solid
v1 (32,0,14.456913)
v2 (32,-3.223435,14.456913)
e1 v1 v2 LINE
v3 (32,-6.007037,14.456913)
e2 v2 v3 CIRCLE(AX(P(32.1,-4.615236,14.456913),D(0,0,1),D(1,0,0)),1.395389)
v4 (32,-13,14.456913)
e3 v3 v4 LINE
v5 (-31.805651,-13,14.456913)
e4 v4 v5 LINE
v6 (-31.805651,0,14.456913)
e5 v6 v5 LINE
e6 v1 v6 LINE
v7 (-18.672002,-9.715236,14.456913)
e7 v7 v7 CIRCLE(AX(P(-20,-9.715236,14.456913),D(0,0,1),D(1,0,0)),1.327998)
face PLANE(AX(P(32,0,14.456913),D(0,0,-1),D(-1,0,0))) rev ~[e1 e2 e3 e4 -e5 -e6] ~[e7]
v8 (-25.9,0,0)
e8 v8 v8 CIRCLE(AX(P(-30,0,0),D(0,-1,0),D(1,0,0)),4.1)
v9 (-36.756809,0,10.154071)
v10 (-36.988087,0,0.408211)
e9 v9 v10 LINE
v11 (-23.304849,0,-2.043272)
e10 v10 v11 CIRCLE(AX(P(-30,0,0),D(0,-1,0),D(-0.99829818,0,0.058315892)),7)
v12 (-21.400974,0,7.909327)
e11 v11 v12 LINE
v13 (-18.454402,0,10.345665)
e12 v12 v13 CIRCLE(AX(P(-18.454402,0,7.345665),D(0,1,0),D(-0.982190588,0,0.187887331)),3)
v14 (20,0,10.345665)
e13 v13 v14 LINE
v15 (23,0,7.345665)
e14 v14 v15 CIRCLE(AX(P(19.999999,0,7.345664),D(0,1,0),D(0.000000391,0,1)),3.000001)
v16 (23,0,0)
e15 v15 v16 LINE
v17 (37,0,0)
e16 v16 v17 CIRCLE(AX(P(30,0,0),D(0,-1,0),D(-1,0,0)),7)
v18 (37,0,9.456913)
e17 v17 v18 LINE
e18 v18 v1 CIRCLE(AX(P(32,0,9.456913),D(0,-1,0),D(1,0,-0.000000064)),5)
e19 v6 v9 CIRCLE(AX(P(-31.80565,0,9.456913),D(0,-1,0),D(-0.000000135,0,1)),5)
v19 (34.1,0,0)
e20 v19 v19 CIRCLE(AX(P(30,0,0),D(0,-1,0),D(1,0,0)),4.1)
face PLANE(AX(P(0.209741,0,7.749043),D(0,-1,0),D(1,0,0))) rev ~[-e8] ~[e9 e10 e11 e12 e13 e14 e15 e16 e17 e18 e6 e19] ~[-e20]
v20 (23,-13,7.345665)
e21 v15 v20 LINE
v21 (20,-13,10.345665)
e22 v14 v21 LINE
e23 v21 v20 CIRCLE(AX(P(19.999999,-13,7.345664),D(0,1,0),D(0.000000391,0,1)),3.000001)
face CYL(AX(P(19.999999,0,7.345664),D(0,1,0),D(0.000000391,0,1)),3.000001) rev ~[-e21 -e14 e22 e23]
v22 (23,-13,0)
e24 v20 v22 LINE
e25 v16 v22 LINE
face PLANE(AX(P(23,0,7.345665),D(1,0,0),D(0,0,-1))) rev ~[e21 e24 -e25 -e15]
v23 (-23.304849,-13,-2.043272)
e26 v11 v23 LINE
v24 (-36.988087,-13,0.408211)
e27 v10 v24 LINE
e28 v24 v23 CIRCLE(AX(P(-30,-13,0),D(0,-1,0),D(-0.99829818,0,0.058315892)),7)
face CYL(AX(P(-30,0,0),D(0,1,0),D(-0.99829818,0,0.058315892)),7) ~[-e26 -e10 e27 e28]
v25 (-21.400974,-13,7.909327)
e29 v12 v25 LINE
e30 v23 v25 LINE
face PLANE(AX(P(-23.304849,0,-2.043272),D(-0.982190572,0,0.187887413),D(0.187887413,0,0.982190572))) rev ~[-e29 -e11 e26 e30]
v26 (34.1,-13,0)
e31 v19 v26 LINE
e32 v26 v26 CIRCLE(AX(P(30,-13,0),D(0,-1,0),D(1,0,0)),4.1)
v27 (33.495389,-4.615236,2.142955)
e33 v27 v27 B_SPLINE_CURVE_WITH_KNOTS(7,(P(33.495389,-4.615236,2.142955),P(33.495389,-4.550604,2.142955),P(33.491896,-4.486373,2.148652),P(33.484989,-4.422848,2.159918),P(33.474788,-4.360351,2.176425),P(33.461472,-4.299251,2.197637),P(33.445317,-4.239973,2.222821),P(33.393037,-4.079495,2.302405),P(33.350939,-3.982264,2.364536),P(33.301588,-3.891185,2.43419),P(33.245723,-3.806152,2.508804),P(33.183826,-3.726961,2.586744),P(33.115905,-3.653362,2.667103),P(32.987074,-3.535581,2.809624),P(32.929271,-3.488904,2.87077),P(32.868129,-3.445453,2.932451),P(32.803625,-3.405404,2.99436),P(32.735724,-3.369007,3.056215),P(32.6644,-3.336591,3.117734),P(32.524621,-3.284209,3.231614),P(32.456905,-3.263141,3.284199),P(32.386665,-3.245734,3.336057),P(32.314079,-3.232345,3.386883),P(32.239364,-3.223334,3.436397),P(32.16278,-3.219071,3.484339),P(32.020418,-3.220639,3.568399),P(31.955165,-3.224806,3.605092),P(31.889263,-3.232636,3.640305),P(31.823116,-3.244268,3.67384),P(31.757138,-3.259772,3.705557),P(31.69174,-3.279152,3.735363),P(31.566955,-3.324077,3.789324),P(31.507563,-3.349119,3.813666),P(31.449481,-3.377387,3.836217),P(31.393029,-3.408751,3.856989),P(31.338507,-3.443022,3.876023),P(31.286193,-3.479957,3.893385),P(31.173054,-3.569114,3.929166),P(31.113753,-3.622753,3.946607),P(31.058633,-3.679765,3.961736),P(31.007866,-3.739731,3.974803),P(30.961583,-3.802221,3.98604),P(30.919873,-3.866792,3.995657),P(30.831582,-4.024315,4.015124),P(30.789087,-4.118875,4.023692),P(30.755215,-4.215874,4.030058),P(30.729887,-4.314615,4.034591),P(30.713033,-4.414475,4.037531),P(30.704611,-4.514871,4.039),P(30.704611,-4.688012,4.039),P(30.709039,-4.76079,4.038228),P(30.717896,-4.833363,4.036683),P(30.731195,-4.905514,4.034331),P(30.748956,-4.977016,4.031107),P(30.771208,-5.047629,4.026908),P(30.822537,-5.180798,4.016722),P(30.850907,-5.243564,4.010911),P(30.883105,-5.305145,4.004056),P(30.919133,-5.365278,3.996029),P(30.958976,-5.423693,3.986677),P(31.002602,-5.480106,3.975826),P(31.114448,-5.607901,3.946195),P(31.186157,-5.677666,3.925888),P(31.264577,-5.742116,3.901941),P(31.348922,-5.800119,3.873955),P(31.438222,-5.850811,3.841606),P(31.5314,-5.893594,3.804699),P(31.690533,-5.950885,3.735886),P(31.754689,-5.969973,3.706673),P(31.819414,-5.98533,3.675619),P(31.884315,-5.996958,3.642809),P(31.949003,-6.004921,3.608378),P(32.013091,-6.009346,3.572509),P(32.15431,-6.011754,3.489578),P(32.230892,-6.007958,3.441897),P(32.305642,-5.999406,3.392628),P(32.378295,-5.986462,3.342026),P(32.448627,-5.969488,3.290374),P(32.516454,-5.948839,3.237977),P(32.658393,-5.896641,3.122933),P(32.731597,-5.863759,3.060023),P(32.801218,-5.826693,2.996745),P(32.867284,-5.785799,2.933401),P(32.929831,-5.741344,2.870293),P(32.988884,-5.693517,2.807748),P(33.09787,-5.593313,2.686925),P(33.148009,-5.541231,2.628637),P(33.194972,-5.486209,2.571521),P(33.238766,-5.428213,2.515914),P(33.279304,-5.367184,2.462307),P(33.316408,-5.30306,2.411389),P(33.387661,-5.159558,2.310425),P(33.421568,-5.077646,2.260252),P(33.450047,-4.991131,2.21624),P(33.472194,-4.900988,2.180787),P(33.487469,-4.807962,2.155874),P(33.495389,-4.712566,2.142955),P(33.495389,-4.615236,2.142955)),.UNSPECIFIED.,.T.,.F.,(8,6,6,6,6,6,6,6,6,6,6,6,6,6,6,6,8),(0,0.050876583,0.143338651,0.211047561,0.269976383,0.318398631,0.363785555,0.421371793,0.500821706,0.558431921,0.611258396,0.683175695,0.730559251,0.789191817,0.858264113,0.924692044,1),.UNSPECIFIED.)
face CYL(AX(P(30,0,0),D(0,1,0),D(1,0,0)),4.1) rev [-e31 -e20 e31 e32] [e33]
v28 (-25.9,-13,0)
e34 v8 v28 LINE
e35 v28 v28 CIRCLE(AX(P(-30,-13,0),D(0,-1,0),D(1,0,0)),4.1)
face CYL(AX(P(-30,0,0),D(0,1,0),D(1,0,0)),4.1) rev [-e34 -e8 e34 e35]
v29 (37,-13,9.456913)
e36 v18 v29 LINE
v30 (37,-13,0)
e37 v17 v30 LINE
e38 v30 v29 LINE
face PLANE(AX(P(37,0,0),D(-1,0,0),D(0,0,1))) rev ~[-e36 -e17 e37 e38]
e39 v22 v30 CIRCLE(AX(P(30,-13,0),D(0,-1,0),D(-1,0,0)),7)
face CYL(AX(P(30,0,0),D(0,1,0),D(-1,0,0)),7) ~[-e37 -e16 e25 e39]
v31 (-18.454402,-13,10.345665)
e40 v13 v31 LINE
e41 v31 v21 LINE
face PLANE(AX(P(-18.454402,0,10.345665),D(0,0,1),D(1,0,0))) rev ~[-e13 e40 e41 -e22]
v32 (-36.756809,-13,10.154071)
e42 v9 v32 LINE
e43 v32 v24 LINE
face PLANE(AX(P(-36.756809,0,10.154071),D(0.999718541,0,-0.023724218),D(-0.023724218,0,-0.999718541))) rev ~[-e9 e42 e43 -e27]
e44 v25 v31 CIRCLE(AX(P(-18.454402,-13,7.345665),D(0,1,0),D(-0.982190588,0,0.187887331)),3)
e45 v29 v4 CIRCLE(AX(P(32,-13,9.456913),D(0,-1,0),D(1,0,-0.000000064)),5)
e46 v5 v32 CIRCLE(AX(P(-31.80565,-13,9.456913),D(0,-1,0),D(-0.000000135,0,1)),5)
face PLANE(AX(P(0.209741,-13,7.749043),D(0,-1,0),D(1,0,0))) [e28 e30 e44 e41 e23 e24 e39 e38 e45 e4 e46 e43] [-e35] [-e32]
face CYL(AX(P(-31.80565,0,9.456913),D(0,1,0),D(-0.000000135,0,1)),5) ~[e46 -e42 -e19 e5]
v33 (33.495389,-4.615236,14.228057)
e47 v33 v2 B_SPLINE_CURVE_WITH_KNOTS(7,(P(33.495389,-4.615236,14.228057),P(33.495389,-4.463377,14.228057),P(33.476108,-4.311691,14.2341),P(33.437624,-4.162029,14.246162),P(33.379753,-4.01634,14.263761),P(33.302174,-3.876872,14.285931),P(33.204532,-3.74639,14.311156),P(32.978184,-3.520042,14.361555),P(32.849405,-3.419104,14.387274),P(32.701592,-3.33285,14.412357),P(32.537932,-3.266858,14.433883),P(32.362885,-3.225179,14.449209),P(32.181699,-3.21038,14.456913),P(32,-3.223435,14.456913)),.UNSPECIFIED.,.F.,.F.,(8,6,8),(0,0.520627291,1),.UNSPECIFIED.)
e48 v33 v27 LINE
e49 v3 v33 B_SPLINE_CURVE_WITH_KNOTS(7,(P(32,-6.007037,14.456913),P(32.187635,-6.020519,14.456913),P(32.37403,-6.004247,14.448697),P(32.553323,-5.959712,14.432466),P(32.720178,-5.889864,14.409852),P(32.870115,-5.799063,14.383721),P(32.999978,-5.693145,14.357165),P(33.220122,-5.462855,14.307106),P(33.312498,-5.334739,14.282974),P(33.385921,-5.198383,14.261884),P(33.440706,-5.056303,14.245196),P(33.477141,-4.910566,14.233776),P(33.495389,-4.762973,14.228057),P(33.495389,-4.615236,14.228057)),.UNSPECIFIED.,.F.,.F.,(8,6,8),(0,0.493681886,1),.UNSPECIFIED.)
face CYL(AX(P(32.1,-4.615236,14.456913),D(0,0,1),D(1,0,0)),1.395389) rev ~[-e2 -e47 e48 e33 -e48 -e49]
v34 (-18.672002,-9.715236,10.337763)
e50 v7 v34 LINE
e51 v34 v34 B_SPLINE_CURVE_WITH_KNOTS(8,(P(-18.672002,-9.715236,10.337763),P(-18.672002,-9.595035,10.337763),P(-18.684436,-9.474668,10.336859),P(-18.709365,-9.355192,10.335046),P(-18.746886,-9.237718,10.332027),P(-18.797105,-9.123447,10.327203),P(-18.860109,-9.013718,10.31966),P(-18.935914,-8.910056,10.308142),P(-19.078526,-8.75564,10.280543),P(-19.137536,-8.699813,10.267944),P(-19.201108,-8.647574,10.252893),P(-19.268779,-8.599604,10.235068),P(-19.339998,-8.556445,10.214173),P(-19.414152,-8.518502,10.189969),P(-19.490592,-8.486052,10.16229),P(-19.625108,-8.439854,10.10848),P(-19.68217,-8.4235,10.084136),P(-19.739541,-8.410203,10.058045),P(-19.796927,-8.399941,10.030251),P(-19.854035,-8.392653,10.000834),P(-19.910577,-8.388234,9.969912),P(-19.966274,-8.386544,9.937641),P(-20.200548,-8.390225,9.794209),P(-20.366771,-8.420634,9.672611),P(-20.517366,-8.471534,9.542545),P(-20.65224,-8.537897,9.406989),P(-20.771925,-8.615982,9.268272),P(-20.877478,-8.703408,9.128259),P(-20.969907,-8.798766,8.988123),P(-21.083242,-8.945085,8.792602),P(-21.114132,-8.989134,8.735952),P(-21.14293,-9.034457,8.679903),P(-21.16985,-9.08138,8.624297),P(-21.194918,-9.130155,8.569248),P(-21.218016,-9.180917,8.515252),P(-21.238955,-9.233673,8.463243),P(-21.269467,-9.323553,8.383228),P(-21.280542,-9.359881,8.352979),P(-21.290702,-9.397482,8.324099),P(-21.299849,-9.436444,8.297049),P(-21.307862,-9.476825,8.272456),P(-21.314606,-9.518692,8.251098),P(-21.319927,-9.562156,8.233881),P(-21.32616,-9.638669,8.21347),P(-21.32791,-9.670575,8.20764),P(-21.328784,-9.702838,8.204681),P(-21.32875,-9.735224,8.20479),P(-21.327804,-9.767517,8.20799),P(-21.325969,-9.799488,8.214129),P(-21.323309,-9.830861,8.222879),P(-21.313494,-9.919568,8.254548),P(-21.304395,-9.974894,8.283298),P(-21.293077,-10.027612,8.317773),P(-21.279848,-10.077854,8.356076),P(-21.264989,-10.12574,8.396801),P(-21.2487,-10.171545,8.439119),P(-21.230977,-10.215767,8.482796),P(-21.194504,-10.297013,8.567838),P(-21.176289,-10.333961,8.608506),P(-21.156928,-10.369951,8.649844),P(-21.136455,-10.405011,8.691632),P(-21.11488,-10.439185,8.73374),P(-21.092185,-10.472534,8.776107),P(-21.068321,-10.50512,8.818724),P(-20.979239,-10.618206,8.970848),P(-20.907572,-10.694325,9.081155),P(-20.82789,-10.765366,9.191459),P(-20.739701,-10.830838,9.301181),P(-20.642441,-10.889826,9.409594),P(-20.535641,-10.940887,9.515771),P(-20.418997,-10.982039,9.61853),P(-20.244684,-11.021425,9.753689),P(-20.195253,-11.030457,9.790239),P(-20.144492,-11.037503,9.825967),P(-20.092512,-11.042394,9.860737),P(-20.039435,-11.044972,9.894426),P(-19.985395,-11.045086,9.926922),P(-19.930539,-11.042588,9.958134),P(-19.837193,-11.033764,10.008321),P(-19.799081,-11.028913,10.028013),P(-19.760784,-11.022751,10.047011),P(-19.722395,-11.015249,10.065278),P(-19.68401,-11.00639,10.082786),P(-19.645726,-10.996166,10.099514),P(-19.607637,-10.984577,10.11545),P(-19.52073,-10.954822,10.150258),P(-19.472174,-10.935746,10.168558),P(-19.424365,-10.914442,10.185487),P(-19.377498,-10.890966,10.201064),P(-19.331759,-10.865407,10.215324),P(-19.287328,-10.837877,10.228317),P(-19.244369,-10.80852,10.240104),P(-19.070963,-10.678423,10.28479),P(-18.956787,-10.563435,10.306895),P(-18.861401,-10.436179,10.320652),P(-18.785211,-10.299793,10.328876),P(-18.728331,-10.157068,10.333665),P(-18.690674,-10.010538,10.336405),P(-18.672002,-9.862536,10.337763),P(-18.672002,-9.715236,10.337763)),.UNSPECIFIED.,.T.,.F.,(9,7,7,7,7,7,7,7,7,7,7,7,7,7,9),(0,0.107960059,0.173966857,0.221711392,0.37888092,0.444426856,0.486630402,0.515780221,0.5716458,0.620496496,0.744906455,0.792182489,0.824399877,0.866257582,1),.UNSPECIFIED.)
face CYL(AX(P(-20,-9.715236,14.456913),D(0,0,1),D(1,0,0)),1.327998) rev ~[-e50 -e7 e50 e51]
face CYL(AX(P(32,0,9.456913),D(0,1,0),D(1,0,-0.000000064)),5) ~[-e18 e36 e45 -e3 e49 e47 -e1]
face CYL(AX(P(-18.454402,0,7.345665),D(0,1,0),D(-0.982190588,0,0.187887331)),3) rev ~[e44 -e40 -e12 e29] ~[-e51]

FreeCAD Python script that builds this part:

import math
import FreeCAD as App
import Part
import Sketcher

V = App.Vector

doc = App.newDocument("Part")
body = doc.addObject("PartDesign::Body", "Body")

# Sketch on XZ plane
sketch1 = body.newObject("Sketcher::SketchObject", "Sketch")
sketch1.AttachmentSupport = (doc.getObject("XZ_Plane"), [""])
sketch1.MapMode = "FlatFace"
sketch1.addGeometry([
    Part.LineSegment(V(-36.756809, 10.154071, 0), V(-36.988087, 0.408211, 0)),  # 0
    Part.ArcOfCircle(Part.Circle(V(-30, 0, 0), V(0, 0, 1), 7), math.radians(176.656849), math.radians(343.028501)),  # 1
    Part.LineSegment(V(-23.304849, -2.043272, 0), V(-21.400974, 7.909327, 0)),  # 2
    Part.ArcOfCircle(Part.Circle(V(-18.454402, 7.345665, 0), V(0, 0, 1), 3), math.radians(89.999995), math.radians(169.170483)),  # 3
    Part.LineSegment(V(-18.454402, 10.345665, 0), V(20, 10.345665, 0)),  # 4
    Part.ArcOfCircle(Part.Circle(V(19.999999, 7.345664, 0), V(0, 0, 1), 3.000001), math.radians(0.000022), math.radians(89.999978)),  # 5
    Part.LineSegment(V(23, 7.345665, 0), V(23, 0, 0)),  # 6
    Part.ArcOfCircle(Part.Circle(V(30, 0, 0), V(0, 0, 1), 7), math.radians(180), math.radians(360)),  # 7
    Part.LineSegment(V(37, 0, 0), V(37, 9.456913, 0)),  # 8
    Part.ArcOfCircle(Part.Circle(V(32, 9.456913, 0), V(0, 0, 1), 5), math.radians(-0.000004), math.radians(90.000004)),  # 9
    Part.LineSegment(V(32, 14.456913, 0), V(-31.805651, 14.456913, 0)),  # 10
    Part.ArcOfCircle(Part.Circle(V(-31.80565, 9.456913, 0), V(0, 0, 1), 5), math.radians(90.000008), math.radians(171.985042)),  # 11
    Part.Circle(V(-30, 0, 0), V(0, 0, 1), 4.1),  # 12
    Part.Circle(V(30, 0, 0), V(0, 0, 1), 4.1),  # 13
], False)
sketch1.addConstraint([
    Sketcher.Constraint("Coincident", 0, 2, 1, 1),
    Sketcher.Constraint("Coincident", 1, 2, 2, 1),
    Sketcher.Constraint("Tangent", 2, 2, 3, 2),
    Sketcher.Constraint("Tangent", 3, 1, 4, 1),
    Sketcher.Constraint("Tangent", 4, 2, 5, 2),
    Sketcher.Constraint("Tangent", 5, 1, 6, 1),
    Sketcher.Constraint("Tangent", 6, 2, 7, 1),
    Sketcher.Constraint("Tangent", 7, 2, 8, 1),
    Sketcher.Constraint("Tangent", 8, 2, 9, 1),
    Sketcher.Constraint("Tangent", 9, 2, 10, 1),
    Sketcher.Constraint("Tangent", 10, 2, 11, 1),
    Sketcher.Constraint("Coincident", 11, 2, 0, 1),
    Sketcher.Constraint("Horizontal", 4),
    Sketcher.Constraint("Vertical", 6),
    Sketcher.Constraint("Vertical", 8),
    Sketcher.Constraint("Horizontal", 10),
    Sketcher.Constraint("Coincident", 12, 3, 1, 3),
    Sketcher.Constraint("Coincident", 13, 3, 7, 3),
    Sketcher.Constraint("Equal", 3, 5),
    Sketcher.Constraint("Equal", 1, 7),
    Sketcher.Constraint("Equal", 9, 11),
    Sketcher.Constraint("Equal", 12, 13),
    Sketcher.Constraint("Symmetric", 1, 3, 7, 3, -1, 1),
    Sketcher.Constraint("PointOnObject", 1, 3, -1),
    Sketcher.Constraint("Radius", 1, 7.0),
    Sketcher.Constraint("Radius", 3, 3.0),
    Sketcher.Constraint("Radius", 9, 5.0),
    Sketcher.Constraint("Diameter", 12, 8.2),
    Sketcher.Constraint("DistanceX", 1, 3, -1, 1, 30.0),
    Sketcher.Constraint("DistanceX", 10, 2, 10, 1, 63.805651),
    Sketcher.Constraint("DistanceX", 3, 3, 5, 3, 38.454401),
    Sketcher.Constraint("DistanceY", 0, 2, 11, 3, 9.048702),
    Sketcher.Constraint("DistanceX", 11, 3, 1, 2, 8.500801),
    Sketcher.Constraint("DistanceY", 1, 2, 2, 2, 9.952599),
    Sketcher.Constraint("DistanceY", 8, 1, 8, 2, 9.456913),
    Sketcher.Constraint("DistanceX", 11, 2, -1, 1, 36.756809),
])
pad1 = body.newObject("PartDesign::Pad", "Pad")
pad1.Profile = sketch1
pad1.Length = 13

# Sketch on XY plane
sketch2 = body.newObject("Sketcher::SketchObject", "Sketch001")
sketch2.AttachmentSupport = (doc.getObject("XY_Plane"), [""])
sketch2.MapMode = "FlatFace"
sketch2.AttachmentOffset = App.Placement(V(0, 0, 14.456913), App.Rotation())
sketch2.addGeometry([
    Part.Circle(V(-20, -9.715236, 0), V(0, 0, 1), 1.327998),
    Part.Circle(V(32.1, -4.615236, 0), V(0, 0, 1), 1.395389),
], False)
sketch2.addConstraint([
    Sketcher.Constraint("DistanceX", 0, 3, -1, 1, 20.0),
    Sketcher.Constraint("DistanceX", -1, 1, 1, 3, 32.1),
    Sketcher.Constraint("DistanceY", 0, 3, 1, 3, 5.1),
    Sketcher.Constraint("Diameter", 1, 2.790778),
    Sketcher.Constraint("Diameter", 0, 2.655996),
    Sketcher.Constraint("DistanceY", 0, 3, -1, 1, 9.715236),
])
pocket1 = body.newObject("PartDesign::Pocket", "Pocket")
pocket1.Profile = sketch2
pocket1.Length = 15

doc.recompute()
